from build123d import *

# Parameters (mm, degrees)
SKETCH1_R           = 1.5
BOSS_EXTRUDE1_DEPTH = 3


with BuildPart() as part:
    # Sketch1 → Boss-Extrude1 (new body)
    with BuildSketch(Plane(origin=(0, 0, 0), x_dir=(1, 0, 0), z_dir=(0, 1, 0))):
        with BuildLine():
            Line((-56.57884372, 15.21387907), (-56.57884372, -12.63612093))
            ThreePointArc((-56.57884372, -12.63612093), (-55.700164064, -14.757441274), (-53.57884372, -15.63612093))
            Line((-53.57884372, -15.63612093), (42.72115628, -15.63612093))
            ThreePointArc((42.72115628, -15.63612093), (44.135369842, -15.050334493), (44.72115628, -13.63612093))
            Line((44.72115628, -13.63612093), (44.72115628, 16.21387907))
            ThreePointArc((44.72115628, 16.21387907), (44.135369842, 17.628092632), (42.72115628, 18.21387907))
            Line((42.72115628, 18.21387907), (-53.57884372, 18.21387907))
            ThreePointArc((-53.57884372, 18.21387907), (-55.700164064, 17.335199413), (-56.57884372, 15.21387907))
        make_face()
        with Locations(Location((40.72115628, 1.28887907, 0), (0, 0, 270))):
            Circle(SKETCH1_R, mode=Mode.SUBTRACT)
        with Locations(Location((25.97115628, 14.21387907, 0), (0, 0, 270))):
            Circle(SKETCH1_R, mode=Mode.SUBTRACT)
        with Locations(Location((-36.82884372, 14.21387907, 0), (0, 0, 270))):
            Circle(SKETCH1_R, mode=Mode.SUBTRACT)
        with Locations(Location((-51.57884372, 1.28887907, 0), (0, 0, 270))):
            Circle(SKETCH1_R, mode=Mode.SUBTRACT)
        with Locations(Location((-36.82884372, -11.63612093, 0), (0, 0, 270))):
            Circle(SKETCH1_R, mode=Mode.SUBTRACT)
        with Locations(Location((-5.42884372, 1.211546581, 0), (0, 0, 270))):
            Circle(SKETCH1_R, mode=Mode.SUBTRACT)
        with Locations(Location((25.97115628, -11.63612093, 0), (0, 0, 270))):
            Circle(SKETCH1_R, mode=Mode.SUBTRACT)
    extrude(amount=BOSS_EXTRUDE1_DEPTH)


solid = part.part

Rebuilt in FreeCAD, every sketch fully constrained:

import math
import FreeCAD as App
import Part
import Sketcher
Q = App.Units.Quantity

doc = App.newDocument("Part")
body = doc.addObject("PartDesign::Body", "Body")

# Sketch on XZ plane
sketch1 = body.newObject("Sketcher::SketchObject", "Sketch")
sketch1.AttachmentSupport = (doc.getObject("XZ_Plane"), [""])
sketch1.MapMode = "FlatFace"
sketch1.addGeometry([
    Part.LineSegment(App.Vector(-56.6, -15.2, 0), App.Vector(-56.6, 12.6, 0)),  # 0
    Part.ArcOfCircle(Part.Circle(App.Vector(-53.6, 12.6, 0), App.Vector(0, 0, 1), 3), math.radians(90), math.radians(180)),  # 1
    Part.LineSegment(App.Vector(-53.6, 15.6, 0), App.Vector(42.7, 15.6, 0)),  # 2
    Part.ArcOfCircle(Part.Circle(App.Vector(42.7, 13.6, 0), App.Vector(0, 0, 1), 2), math.radians(0), math.radians(90)),  # 3
    Part.LineSegment(App.Vector(44.7, 13.6, 0), App.Vector(44.7, -16.2, 0)),  # 4
    Part.ArcOfCircle(Part.Circle(App.Vector(42.7, -16.2, 0), App.Vector(0, 0, 1), 2), math.radians(-90), math.radians(0)),  # 5
    Part.LineSegment(App.Vector(42.7, -18.2, 0), App.Vector(-53.6, -18.2, 0)),  # 6
    Part.ArcOfCircle(Part.Circle(App.Vector(-53.6, -15.2, 0), App.Vector(0, 0, 1), 3), math.radians(180), math.radians(270)),  # 7
    Part.Circle(App.Vector(-36.8, 11.6, 0), App.Vector(0, 0, 1), 1.5),  # 8
    Part.Circle(App.Vector(26, 11.6, 0), App.Vector(0, 0, 1), 1.5),  # 9
    Part.Circle(App.Vector(-5.4, -1.2, 0), App.Vector(0, 0, 1), 1.5),  # 10
    Part.Circle(App.Vector(-51.6, -1.3, 0), App.Vector(0, 0, 1), 1.5),  # 11
    Part.Circle(App.Vector(-36.8, -14.2, 0), App.Vector(0, 0, 1), 1.5),  # 12
    Part.Circle(App.Vector(40.7, -1.3, 0), App.Vector(0, 0, 1), 1.5),  # 13
    Part.Circle(App.Vector(26, -14.2, 0), App.Vector(0, 0, 1), 1.5),  # 14
], False)
sketch1.addConstraint([
    Sketcher.Constraint("Tangent", 0, 2, 1, 2),
    Sketcher.Constraint("Tangent", 1, 1, 2, 1),
    Sketcher.Constraint("Tangent", 2, 2, 3, 2),
    Sketcher.Constraint("Tangent", 3, 1, 4, 1),
    Sketcher.Constraint("Tangent", 4, 2, 5, 2),
    Sketcher.Constraint("Tangent", 5, 1, 6, 1),
    Sketcher.Constraint("Tangent", 6, 2, 7, 2),
    Sketcher.Constraint("Tangent", 7, 1, 0, 1),
    Sketcher.Constraint("Vertical", 0),
    Sketcher.Constraint("Horizontal", 2),
    Sketcher.Constraint("Vertical", 4),
    Sketcher.Constraint("Horizontal", 6),
    Sketcher.Constraint("Equal", 3, 5),
    Sketcher.Constraint("Equal", 1, 7),
    Sketcher.Constraint("Equal", 8, 9),
    Sketcher.Constraint("Equal", 9, 10),
    Sketcher.Constraint("Equal", 10, 11),
    Sketcher.Constraint("Equal", 11, 12),
    Sketcher.Constraint("Equal", 12, 13),
    Sketcher.Constraint("Equal", 13, 14),
    Sketcher.Constraint("Horizontal", 8, 3, 9, 3),
    Sketcher.Constraint("Horizontal", 11, 3, 13, 3),
    Sketcher.Constraint("Horizontal", 12, 3, 14, 3),
    Sketcher.Constraint("Vertical", 8, 3, 12, 3),
    Sketcher.Constraint("Vertical", 9, 3, 14, 3),
    Sketcher.Constraint("Diameter", 8, Q("3 mm")),
    Sketcher.Constraint("Radius", 1, Q("3 mm")),
    Sketcher.Constraint("Radius", 3, Q("2 mm")),
    Sketcher.Constraint("DistanceX", 2, 1, 2, 2, Q("96.3 mm")),
    Sketcher.Constraint("DistanceY", 8, 3, 1, 3, Q("1 mm")),
    Sketcher.Constraint("DistanceX", 7, 3, 11, 3, Q("2 mm")),
    Sketcher.Constraint("DistanceY", 7, 3, 12, 3, Q("1 mm")),
    Sketcher.Constraint("DistanceX", 13, 3, 5, 3, Q("2 mm")),
    Sketcher.Constraint("DistanceY", 0, 1, 0, 2, Q("27.85 mm")),
    Sketcher.Constraint("DistanceX", 8, 3, 9, 3, Q("62.8 mm")),
    Sketcher.Constraint("DistanceX", 8, 3, 10, 3, Q("31.4 mm")),
    Sketcher.Constraint("DistanceX", 1, 3, 8, 3, Q("16.75 mm")),
    Sketcher.Constraint("DistanceY", 7, 3, 11, 3, Q("13.925 mm")),
    Sketcher.Constraint("DistanceY", -1, 1, 1, 3, Q("12.636121 mm")),
    Sketcher.Constraint("DistanceX", 1, 3, -1, 1, Q("53.578844 mm")),
    Sketcher.Constraint("DistanceY", 10, 3, -1, 1, Q("1.211547 mm")),
])
pad1 = body.newObject("PartDesign::Pad", "Pad")
pad1.Profile = sketch1
pad1.Length = 3
pad1.Reversed = True

doc.recompute()
